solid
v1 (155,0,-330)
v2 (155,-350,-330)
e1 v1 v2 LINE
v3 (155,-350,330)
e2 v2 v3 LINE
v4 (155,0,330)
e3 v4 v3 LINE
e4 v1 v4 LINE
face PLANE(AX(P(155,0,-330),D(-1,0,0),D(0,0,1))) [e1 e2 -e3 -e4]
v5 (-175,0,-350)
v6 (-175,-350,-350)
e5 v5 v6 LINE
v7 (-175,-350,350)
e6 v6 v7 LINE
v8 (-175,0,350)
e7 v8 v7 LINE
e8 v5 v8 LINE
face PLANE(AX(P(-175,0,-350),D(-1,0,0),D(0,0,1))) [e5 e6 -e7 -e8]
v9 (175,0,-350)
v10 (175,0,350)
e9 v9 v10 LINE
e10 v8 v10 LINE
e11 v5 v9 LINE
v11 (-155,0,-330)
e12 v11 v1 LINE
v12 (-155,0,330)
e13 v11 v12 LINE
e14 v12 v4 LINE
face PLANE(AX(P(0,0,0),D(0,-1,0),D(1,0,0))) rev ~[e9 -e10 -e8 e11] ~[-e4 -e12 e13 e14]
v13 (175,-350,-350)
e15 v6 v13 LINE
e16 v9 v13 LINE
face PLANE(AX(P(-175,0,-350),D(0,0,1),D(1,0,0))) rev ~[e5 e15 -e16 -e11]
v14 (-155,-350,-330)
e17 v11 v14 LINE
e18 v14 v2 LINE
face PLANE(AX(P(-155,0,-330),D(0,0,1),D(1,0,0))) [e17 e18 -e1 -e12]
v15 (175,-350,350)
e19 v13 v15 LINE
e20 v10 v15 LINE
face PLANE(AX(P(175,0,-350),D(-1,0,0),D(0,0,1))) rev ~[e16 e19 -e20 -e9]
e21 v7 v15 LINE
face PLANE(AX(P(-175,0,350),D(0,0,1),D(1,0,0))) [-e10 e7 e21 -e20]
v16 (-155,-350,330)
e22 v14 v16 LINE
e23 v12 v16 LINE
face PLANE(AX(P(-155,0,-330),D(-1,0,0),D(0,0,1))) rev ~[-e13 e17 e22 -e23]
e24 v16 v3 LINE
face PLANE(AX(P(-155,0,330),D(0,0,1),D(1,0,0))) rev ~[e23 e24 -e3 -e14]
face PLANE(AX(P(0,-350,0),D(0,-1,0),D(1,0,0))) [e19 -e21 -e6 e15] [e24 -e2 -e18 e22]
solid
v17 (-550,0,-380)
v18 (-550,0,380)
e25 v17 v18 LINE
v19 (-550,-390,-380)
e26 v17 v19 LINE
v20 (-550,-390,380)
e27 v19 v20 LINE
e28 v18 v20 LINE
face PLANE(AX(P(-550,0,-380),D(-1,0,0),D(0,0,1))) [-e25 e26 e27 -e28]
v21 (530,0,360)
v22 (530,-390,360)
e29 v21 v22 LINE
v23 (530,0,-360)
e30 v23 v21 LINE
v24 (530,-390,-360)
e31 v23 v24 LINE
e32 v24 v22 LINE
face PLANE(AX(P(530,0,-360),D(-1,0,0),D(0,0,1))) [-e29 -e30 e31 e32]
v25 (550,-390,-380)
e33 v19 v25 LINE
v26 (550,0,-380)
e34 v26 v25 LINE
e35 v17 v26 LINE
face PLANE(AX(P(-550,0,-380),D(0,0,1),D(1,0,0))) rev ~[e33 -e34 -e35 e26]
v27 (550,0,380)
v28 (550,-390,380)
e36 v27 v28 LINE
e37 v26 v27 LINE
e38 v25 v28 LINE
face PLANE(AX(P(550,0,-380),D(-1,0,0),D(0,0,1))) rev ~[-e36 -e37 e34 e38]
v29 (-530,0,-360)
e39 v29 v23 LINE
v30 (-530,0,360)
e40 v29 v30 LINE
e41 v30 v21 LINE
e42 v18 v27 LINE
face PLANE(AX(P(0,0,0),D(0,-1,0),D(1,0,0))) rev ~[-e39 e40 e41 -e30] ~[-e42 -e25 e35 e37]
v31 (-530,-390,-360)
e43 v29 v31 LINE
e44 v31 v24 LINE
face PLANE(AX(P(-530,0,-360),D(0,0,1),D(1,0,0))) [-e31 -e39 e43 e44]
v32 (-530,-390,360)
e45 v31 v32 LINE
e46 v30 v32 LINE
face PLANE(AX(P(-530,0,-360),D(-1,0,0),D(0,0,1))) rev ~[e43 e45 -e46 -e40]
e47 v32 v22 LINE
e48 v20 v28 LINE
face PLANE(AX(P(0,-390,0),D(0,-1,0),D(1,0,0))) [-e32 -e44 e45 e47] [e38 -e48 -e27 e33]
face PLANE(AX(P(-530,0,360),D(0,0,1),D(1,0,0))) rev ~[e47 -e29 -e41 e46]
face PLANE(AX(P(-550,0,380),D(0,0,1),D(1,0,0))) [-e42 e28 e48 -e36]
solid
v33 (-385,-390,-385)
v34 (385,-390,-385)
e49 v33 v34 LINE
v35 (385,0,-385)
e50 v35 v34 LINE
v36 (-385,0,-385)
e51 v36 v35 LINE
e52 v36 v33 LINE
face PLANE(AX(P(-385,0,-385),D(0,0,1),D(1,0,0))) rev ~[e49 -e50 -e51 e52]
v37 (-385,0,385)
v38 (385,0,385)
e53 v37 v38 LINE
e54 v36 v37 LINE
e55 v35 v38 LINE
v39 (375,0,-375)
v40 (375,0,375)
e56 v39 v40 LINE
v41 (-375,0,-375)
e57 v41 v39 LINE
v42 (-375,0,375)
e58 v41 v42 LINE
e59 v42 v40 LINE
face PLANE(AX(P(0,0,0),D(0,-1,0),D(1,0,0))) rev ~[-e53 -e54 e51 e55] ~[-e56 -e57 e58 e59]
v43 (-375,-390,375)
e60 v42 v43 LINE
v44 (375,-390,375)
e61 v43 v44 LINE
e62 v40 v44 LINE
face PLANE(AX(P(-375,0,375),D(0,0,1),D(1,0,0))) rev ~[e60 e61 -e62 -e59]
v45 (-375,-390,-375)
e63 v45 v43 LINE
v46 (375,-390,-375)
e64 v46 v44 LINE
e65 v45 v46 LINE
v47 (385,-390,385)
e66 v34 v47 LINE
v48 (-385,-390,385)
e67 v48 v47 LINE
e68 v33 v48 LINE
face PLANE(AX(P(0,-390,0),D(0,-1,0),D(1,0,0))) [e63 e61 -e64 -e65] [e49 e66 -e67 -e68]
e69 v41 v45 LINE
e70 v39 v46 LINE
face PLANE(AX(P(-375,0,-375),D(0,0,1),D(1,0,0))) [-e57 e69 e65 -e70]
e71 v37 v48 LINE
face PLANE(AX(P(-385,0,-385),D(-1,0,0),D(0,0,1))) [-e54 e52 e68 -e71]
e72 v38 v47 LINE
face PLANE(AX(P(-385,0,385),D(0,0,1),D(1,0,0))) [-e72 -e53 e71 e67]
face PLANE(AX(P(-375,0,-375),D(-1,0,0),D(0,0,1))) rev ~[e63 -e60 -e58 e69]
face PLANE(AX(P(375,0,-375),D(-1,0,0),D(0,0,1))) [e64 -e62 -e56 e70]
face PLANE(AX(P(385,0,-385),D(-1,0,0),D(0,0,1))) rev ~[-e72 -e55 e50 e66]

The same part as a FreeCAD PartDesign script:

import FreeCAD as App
import Part
import Sketcher
from FreeCAD import Vector
Q = App.Units.Quantity


def add_polygon(sketch, points):
    """Adds a closed chain of lines whose ends are joined by coincident constraints."""
    first, n = sketch.GeometryCount, len(points)
    for a, b in zip(points, points[1:] + points[:1]):
        sketch.addGeometry(Part.LineSegment(App.Vector(*a, 0), App.Vector(*b, 0)), False)
    for i in range(n):
        sketch.addConstraint(Sketcher.Constraint("Coincident", first + i, 2, first + (i + 1) % n, 1))

doc = App.newDocument("Part")
params = doc.addObject("Spreadsheet::Sheet", "Params")
for row, (alias, value) in enumerate([
    ("sketch1_width", "770 mm"),
    ("sketch1_width2", "750 mm"),
    ("pad1_length", "390 mm"),
    ("sketch2_width", "1100 mm"),
    ("sketch2_width2", "1060 mm"),
    ("sketch2_height", "760 mm"),
    ("sketch2_height2", "720 mm"),
    ("pad2_length", "390 mm"),
    ("sketch3_width", "350 mm"),
    ("sketch3_width2", "310 mm"),
    ("sketch3_height", "700 mm"),
    ("sketch3_height2", "660 mm"),
    ("pad3_length", "350 mm"),
], start=1):
    params.set(f"A{row}", alias)
    params.set(f"B{row}", "=" + value)
    params.setAlias(f"B{row}", alias)

body = doc.addObject("PartDesign::Body", "Body")

# Sketch on XZ plane
sketch1 = body.newObject("Sketcher::SketchObject", "Sketch")
sketch1.AttachmentSupport = (doc.getObject("XZ_Plane"), [""])
sketch1.MapMode = "FlatFace"
add_polygon(sketch1, [(-385, 385), (-385, -385), (385, -385), (385, 385)])  # lines 0-3
add_polygon(sketch1, [(375, -375), (-375, -375), (-375, 375), (375, 375)])  # lines 4-7
sketch1.addConstraint([
    Sketcher.Constraint("Vertical", 0),
    Sketcher.Constraint("Horizontal", 1),
    Sketcher.Constraint("Vertical", 2),
    Sketcher.Constraint("Horizontal", 3),
    Sketcher.Constraint("Horizontal", 4),
    Sketcher.Constraint("Vertical", 5),
    Sketcher.Constraint("Horizontal", 6),
    Sketcher.Constraint("Vertical", 7),
    Sketcher.Constraint("Symmetric", 0, 2, 2, 2, -1, 1),
    Sketcher.Constraint("Symmetric", 4, 2, 6, 2, -1, 1),
    Sketcher.Constraint("Equal", 3, 0),
    Sketcher.Constraint("Equal", 6, 5),
    Sketcher.Constraint("DistanceX", 1, 1, 1, 2, Q("770 mm")),
    Sketcher.Constraint("DistanceX", 4, 2, 4, 1, Q("750 mm")),
])
sketch1.setExpression("Constraints[20]", "Params.sketch1_width")
sketch1.setExpression("Constraints[21]", "Params.sketch1_width2")
pad1 = body.newObject("PartDesign::Pad", "Pad")
pad1.Profile = sketch1
pad1.setExpression("Length", "Params.pad1_length")
body2 = doc.addObject("PartDesign::Body", "Body001")

# Sketch on XZ plane
sketch2 = body2.newObject("Sketcher::SketchObject", "Sketch001")
sketch2.AttachmentSupport = (doc.getObject("XZ_Plane001"), [""])
sketch2.MapMode = "FlatFace"
add_polygon(sketch2, [(-550, 380), (-550, -380), (550, -380), (550, 380)])  # lines 0-3
add_polygon(sketch2, [(530, -360), (-530, -360), (-530, 360), (530, 360)])  # lines 4-7
sketch2.addConstraint([
    Sketcher.Constraint("Vertical", 0),
    Sketcher.Constraint("Horizontal", 1),
    Sketcher.Constraint("Vertical", 2),
    Sketcher.Constraint("Horizontal", 3),
    Sketcher.Constraint("Horizontal", 4),
    Sketcher.Constraint("Vertical", 5),
    Sketcher.Constraint("Horizontal", 6),
    Sketcher.Constraint("Vertical", 7),
    Sketcher.Constraint("Symmetric", 0, 2, 2, 2, -1, 1),
    Sketcher.Constraint("Symmetric", 4, 2, 6, 2, -1, 1),
    Sketcher.Constraint("DistanceX", 1, 1, 1, 2, Q("1100 mm")),
    Sketcher.Constraint("DistanceX", 4, 2, 4, 1, Q("1060 mm")),
    Sketcher.Constraint("DistanceY", 0, 2, 0, 1, Q("760 mm")),
    Sketcher.Constraint("DistanceY", 5, 1, 5, 2, Q("720 mm")),
])
sketch2.setExpression("Constraints[18]", "Params.sketch2_width")
sketch2.setExpression("Constraints[19]", "Params.sketch2_width2")
sketch2.setExpression("Constraints[20]", "Params.sketch2_height")
sketch2.setExpression("Constraints[21]", "Params.sketch2_height2")
pad2 = body2.newObject("PartDesign::Pad", "Pad001")
pad2.Profile = sketch2
pad2.setExpression("Length", "Params.pad2_length")
body3 = doc.addObject("PartDesign::Body", "Body002")

# Sketch on XZ plane
sketch3 = body3.newObject("Sketcher::SketchObject", "Sketch002")
sketch3.AttachmentSupport = (doc.getObject("XZ_Plane002"), [""])
sketch3.MapMode = "FlatFace"
add_polygon(sketch3, [(-175, 350), (-175, -350), (175, -350), (175, 350)])  # lines 0-3
add_polygon(sketch3, [(155, -330), (-155, -330), (-155, 330), (155, 330)])  # lines 4-7
sketch3.addConstraint([
    Sketcher.Constraint("Vertical", 0),
    Sketcher.Constraint("Horizontal", 1),
    Sketcher.Constraint("Vertical", 2),
    Sketcher.Constraint("Horizontal", 3),
    Sketcher.Constraint("Horizontal", 4),
    Sketcher.Constraint("Vertical", 5),
    Sketcher.Constraint("Horizontal", 6),
    Sketcher.Constraint("Vertical", 7),
    Sketcher.Constraint("Symmetric", 0, 2, 2, 2, -1, 1),
    Sketcher.Constraint("Symmetric", 4, 2, 6, 2, -1, 1),
    Sketcher.Constraint("DistanceX", 1, 1, 1, 2, Q("350 mm")),
    Sketcher.Constraint("DistanceX", 4, 2, 4, 1, Q("310 mm")),
    Sketcher.Constraint("DistanceY", 0, 2, 0, 1, Q("700 mm")),
    Sketcher.Constraint("DistanceY", 5, 1, 5, 2, Q("660 mm")),
])
sketch3.setExpression("Constraints[18]", "Params.sketch3_width")
sketch3.setExpression("Constraints[19]", "Params.sketch3_width2")
sketch3.setExpression("Constraints[20]", "Params.sketch3_height")
sketch3.setExpression("Constraints[21]", "Params.sketch3_height2")
pad3 = body3.newObject("PartDesign::Pad", "Pad002")
pad3.Profile = sketch3
pad3.setExpression("Length", "Params.pad3_length")

doc.recompute()
